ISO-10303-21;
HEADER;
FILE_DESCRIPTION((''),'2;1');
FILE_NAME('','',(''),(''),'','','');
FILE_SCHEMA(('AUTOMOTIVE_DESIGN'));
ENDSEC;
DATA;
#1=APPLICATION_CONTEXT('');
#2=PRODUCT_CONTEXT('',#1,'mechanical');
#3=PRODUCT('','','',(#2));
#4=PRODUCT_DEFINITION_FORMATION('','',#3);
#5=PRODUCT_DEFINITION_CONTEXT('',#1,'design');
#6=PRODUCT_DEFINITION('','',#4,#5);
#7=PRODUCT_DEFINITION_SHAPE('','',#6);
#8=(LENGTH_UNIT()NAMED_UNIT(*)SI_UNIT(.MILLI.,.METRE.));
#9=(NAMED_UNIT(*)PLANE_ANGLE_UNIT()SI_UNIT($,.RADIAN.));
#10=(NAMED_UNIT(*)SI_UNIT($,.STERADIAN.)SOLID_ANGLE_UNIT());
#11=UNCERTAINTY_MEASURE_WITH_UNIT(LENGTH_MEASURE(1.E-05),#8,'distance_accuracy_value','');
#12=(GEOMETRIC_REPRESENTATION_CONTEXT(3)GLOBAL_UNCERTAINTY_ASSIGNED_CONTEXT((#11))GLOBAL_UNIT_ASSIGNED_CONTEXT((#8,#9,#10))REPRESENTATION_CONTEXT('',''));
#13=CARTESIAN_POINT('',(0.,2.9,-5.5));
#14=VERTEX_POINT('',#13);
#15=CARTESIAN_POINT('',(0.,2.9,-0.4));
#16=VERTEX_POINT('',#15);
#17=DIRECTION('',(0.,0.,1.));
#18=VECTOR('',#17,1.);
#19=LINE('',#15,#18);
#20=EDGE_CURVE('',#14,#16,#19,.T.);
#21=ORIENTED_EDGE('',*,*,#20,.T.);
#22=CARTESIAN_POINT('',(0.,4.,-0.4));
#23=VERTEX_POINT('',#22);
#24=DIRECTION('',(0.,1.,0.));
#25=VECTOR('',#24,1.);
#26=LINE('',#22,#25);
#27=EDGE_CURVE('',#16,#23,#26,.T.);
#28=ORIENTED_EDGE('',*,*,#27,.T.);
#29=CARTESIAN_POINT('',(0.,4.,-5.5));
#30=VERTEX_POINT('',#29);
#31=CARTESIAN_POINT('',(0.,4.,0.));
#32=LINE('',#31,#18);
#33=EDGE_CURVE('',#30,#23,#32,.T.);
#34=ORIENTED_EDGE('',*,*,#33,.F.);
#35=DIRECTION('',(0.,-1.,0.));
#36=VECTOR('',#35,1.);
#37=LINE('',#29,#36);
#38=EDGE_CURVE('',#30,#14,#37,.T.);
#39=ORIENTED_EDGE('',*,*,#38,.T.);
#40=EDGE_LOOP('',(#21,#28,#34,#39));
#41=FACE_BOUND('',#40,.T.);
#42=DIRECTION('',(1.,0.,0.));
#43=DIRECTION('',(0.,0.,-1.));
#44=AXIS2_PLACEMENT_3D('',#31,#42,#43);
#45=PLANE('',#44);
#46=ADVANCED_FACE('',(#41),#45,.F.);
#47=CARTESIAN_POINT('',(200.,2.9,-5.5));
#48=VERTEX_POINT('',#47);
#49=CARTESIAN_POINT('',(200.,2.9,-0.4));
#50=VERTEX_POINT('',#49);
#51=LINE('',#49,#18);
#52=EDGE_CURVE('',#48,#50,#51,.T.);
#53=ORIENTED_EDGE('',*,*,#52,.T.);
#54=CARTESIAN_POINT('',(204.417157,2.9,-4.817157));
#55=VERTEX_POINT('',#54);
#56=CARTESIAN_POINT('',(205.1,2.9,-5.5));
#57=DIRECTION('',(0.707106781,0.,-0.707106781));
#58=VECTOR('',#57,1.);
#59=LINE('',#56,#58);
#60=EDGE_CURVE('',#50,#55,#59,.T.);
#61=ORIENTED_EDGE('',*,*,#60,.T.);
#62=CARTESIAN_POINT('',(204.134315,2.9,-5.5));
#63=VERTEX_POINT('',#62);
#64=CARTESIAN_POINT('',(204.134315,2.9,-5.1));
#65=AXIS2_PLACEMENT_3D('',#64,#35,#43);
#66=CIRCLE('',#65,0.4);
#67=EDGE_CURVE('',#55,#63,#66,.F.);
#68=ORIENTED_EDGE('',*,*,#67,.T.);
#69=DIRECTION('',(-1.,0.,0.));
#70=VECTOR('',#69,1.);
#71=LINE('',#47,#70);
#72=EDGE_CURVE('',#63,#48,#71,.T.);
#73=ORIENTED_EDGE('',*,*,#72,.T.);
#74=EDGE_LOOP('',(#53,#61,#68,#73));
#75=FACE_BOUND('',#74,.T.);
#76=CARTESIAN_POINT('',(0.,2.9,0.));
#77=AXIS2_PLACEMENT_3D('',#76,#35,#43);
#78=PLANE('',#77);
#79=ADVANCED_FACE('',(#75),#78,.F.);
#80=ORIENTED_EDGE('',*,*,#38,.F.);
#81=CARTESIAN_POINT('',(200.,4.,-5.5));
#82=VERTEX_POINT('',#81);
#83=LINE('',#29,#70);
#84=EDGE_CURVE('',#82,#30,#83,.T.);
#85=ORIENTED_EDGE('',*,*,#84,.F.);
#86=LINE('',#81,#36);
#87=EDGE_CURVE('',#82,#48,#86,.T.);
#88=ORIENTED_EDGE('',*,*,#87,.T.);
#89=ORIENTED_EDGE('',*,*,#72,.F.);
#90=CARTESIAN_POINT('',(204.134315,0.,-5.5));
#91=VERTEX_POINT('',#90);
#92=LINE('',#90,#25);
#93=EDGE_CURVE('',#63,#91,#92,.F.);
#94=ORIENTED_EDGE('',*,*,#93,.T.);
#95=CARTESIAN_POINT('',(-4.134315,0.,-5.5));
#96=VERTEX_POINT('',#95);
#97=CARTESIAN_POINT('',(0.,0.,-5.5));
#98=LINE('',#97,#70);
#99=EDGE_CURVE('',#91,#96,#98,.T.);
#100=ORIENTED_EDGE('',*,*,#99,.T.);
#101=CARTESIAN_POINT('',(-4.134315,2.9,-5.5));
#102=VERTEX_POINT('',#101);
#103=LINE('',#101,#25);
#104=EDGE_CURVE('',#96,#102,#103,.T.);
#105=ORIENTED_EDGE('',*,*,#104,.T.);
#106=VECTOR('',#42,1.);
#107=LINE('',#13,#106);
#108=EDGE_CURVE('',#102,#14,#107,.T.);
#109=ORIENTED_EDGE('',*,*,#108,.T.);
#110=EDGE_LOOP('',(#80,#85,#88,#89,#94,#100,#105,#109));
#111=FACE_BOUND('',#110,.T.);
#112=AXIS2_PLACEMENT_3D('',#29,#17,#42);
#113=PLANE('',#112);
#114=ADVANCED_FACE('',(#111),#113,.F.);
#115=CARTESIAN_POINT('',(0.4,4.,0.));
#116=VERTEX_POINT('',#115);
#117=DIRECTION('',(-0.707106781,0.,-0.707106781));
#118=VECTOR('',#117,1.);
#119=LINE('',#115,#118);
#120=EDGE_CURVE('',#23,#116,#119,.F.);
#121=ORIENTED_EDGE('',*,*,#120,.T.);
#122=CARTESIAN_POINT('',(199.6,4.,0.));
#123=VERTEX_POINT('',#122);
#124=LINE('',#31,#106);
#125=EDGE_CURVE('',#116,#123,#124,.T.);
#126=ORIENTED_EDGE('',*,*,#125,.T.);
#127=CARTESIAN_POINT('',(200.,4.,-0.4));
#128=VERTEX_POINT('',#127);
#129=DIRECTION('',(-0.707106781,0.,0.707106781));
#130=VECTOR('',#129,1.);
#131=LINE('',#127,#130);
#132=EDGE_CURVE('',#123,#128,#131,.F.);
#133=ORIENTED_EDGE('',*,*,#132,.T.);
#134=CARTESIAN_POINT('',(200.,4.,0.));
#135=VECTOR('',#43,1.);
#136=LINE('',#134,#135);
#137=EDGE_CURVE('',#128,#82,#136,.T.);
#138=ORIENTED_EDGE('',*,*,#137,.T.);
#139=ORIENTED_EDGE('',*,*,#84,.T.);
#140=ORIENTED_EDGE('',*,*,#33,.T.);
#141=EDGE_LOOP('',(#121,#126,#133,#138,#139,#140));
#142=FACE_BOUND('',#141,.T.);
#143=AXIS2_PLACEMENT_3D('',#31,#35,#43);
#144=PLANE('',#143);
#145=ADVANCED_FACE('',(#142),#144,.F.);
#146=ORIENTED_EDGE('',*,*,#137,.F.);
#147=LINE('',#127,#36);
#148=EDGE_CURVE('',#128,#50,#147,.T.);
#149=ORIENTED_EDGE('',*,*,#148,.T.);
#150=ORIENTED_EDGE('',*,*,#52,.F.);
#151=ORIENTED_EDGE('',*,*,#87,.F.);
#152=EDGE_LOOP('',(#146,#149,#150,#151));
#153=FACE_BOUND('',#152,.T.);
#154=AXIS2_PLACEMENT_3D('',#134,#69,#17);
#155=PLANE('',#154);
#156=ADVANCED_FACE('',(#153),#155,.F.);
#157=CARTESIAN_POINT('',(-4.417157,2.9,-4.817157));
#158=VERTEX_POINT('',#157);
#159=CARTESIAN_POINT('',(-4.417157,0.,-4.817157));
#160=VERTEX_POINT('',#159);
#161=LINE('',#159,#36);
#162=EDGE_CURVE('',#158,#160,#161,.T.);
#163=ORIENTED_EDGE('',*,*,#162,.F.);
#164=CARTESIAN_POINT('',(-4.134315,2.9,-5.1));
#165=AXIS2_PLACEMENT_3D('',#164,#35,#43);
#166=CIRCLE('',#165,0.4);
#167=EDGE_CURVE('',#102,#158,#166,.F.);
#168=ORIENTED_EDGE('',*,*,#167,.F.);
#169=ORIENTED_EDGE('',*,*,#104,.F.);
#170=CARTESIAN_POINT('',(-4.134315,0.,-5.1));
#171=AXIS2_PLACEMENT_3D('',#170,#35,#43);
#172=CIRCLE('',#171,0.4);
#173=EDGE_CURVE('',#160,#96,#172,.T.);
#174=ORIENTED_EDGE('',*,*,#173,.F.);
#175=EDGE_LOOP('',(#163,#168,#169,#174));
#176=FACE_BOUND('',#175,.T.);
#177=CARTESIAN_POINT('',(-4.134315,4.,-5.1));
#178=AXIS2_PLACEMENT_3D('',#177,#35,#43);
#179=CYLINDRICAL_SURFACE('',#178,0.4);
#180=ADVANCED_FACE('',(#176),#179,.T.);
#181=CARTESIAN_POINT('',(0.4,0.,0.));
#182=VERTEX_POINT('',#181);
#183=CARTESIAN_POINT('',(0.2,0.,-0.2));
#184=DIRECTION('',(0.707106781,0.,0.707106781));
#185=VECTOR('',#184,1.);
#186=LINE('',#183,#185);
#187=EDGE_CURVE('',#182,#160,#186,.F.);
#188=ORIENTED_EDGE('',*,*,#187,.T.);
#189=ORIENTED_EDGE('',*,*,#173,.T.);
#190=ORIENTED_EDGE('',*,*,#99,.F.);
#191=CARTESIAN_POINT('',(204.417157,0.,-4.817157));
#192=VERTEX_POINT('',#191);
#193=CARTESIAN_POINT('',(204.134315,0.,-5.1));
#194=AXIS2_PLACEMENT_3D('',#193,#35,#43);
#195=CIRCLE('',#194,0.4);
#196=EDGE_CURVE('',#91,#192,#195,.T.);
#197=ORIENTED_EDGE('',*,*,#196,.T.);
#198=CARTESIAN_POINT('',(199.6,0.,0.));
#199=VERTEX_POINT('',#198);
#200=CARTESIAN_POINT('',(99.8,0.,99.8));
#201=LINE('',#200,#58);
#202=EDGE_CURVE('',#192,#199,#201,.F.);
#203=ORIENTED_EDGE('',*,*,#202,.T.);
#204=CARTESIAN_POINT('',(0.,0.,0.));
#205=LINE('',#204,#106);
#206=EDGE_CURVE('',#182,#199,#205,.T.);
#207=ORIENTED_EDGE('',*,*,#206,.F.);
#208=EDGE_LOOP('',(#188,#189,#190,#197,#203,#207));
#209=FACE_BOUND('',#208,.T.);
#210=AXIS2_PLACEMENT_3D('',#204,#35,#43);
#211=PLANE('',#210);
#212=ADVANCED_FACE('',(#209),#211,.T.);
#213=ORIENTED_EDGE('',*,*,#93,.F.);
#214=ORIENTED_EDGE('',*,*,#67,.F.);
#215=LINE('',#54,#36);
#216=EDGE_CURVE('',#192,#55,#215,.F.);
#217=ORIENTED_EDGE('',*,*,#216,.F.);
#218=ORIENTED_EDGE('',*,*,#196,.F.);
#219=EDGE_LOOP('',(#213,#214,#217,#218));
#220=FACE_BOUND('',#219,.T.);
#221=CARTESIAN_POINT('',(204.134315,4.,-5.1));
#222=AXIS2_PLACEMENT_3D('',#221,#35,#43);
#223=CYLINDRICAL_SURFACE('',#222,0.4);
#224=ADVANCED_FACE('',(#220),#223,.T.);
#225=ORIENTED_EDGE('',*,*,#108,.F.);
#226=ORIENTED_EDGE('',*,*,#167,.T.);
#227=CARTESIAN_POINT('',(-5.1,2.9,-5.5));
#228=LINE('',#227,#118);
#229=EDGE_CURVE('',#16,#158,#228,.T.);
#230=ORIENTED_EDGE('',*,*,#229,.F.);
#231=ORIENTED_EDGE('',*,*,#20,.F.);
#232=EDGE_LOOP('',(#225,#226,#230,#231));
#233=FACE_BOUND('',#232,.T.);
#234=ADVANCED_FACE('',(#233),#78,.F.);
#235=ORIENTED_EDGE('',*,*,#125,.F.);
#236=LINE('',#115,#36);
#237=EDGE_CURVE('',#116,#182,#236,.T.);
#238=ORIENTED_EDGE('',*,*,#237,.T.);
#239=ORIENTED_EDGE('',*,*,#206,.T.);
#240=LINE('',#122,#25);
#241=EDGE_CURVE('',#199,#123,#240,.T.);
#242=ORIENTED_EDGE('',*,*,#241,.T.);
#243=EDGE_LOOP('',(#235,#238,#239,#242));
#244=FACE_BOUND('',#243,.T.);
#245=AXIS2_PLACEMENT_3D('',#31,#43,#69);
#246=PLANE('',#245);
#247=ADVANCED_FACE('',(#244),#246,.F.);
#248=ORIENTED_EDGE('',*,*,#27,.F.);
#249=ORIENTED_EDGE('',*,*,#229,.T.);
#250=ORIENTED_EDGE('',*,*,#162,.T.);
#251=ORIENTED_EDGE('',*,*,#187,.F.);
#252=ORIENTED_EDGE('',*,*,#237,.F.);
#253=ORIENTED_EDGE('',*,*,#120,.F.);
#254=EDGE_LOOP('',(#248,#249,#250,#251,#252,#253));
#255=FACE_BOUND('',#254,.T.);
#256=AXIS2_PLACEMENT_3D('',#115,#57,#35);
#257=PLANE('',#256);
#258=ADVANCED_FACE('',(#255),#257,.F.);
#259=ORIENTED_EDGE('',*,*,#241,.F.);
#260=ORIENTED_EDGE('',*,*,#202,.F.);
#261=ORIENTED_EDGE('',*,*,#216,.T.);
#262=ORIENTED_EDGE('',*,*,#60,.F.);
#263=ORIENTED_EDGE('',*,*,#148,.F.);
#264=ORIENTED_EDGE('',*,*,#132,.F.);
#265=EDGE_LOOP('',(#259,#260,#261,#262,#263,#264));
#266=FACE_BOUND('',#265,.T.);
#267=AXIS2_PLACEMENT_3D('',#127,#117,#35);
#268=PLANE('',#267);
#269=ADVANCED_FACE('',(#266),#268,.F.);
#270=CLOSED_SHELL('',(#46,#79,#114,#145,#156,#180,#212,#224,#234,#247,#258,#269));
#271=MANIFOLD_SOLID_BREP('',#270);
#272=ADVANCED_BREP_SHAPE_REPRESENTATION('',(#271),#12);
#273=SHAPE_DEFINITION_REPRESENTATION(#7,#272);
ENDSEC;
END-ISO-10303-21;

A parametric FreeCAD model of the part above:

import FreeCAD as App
import Part
import Sketcher

V = App.Vector
Q = App.Units.Quantity


def edges_at(feature, points):
    """Names of the edges that pass closest to the given points."""
    edges = feature.Shape.Edges
    near = lambda p: min(range(len(edges)), key=lambda i: edges[i].distToShape(Part.Vertex(*p))[0])
    return sorted({f"Edge{near(p) + 1}" for p in points})


def add_polygon(sketch, points):
    """Adds a closed chain of lines whose ends are joined by coincident constraints."""
    first, n = sketch.GeometryCount, len(points)
    for a, b in zip(points, points[1:] + points[:1]):
        sketch.addGeometry(Part.LineSegment(App.Vector(*a, 0), App.Vector(*b, 0)), False)
    for i in range(n):
        sketch.addConstraint(Sketcher.Constraint("Coincident", first + i, 2, first + (i + 1) % n, 1))

doc = App.newDocument("Part")
body = doc.addObject("PartDesign::Body", "Body")

# Sketch on XZ plane
sketch1 = doc.addObject("Sketcher::SketchObject", "Sketch")
body.addObject(sketch1)
sketch1.AttachmentSupport = (doc.XZ_Plane, [""])
sketch1.MapMode = "FlatFace"
add_polygon(sketch1, [(0, -5.5), (0, 0), (200, 0), (200, -5.5)])  # lines 0-3
sketch1.addConstraint(Sketcher.Constraint("Vertical", 0))
sketch1.addConstraint(Sketcher.Constraint("Horizontal", 1))
sketch1.addConstraint(Sketcher.Constraint("Vertical", 2))
sketch1.addConstraint(Sketcher.Constraint("Horizontal", 3))
sketch1.addConstraint(Sketcher.Constraint("Coincident", 0, 2, -1, 1))
sketch1.addConstraint(Sketcher.Constraint("DistanceX", 1, 1, 1, 2, Q("200 mm")))
sketch1.addConstraint(Sketcher.Constraint("DistanceY", 0, 1, 0, 2, Q("5.5 mm")))
pad1 = doc.addObject("PartDesign::Pad", "Pad")
body.addObject(pad1)
pad1.Profile = sketch1
pad1.Length = 4
pad1.Reversed = True
doc.recompute()

chamfer = doc.addObject("PartDesign::Chamfer", "Chamfer")
body.addObject(chamfer)
chamfer.Base = (pad1, edges_at(pad1, [(200, 2, 0), (0, 2, 0)]))
chamfer.Size = 0.4

# Sketch on XZ plane
sketch2 = doc.addObject("Sketcher::SketchObject", "Sketch001")
body.addObject(sketch2)
sketch2.AttachmentSupport = (doc.XZ_Plane, [""])
sketch2.MapMode = "FlatFace"
add_polygon(sketch2, [(0, -5.5), (-5.1, -5.5), (0, -0.4)])  # lines 0-2
sketch2.addConstraint(Sketcher.Constraint("Horizontal", 0))
sketch2.addConstraint(Sketcher.Constraint("Vertical", 2))
sketch2.addConstraint(Sketcher.Constraint("PointOnObject", 1, 2, -2))
sketch2.addConstraint(Sketcher.Constraint("Equal", 0, 2))
sketch2.addConstraint(Sketcher.Constraint("DistanceX", 0, 2, 0, 1, Q("5.1 mm")))
sketch2.addConstraint(Sketcher.Constraint("DistanceY", 0, 2, -1, 1, Q("5.5 mm")))
pad2 = doc.addObject("PartDesign::Pad", "Pad001")
body.addObject(pad2)
pad2.Profile = sketch2
pad2.Length = 2.9
pad2.Reversed = True
doc.recompute()

datumplane = doc.addObject("PartDesign::Plane", "DatumPlane")
body.addObject(datumplane)
datumplane.AttachmentSupport = (doc.YZ_Plane, [""])
datumplane.MapMode = "FlatFace"
datumplane.AttachmentOffset = App.Placement(V(0, 0, 100), App.Rotation())
mirrored = doc.addObject("PartDesign::Mirrored", "Mirrored")
body.addObject(mirrored)
mirrored.Originals = [pad2]
mirrored.MirrorPlane = (datumplane, [""])
body.Tip = mirrored
doc.recompute()

fillet = doc.addObject("PartDesign::Fillet", "Fillet")
body.addObject(fillet)
fillet.Base = (mirrored, edges_at(mirrored, [(-5.1, 1.45, -5.5), (205.1, 1.45, -5.5)]))
fillet.Radius = 0.4

doc.recompute()
